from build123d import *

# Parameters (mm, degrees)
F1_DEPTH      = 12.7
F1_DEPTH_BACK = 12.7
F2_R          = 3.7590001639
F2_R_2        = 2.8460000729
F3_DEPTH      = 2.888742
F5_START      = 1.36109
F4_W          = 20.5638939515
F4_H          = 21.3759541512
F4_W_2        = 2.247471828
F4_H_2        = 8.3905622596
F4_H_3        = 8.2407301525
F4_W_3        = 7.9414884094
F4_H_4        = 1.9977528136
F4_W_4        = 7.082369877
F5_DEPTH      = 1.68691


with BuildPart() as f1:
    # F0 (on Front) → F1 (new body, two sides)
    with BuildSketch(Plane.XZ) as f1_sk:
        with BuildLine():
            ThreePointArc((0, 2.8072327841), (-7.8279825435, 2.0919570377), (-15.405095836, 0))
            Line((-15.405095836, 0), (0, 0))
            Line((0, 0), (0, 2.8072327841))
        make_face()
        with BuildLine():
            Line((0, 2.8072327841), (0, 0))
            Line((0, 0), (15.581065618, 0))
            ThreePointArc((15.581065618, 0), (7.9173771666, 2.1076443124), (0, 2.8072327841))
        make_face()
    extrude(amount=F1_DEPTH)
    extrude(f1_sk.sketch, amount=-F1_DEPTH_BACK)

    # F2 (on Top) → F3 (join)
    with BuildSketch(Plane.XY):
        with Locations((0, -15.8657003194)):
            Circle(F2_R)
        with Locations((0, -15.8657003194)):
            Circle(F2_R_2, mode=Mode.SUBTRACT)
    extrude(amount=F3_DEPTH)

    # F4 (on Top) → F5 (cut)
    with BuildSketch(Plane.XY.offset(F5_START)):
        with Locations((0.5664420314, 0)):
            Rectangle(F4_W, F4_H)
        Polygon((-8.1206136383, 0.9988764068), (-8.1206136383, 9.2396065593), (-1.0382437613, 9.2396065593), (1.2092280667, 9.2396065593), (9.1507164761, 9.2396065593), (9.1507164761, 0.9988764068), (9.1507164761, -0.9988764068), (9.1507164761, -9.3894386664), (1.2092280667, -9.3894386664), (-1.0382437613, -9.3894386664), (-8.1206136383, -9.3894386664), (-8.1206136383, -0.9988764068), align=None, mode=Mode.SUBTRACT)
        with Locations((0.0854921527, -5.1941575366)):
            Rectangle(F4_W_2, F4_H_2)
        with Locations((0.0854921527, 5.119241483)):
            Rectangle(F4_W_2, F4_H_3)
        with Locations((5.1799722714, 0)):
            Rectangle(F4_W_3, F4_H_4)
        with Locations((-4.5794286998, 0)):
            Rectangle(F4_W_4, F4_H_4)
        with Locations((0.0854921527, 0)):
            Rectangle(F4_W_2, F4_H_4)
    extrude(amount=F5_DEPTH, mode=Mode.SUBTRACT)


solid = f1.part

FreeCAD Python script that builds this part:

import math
import FreeCAD as App
import Part
import Sketcher
from FreeCAD import Vector
Q = App.Units.Quantity


def add_polygon(sketch, points):
    """Adds a closed chain of lines whose ends are joined by coincident constraints."""
    first, n = sketch.GeometryCount, len(points)
    for a, b in zip(points, points[1:] + points[:1]):
        sketch.addGeometry(Part.LineSegment(App.Vector(*a, 0), App.Vector(*b, 0)), False)
    for i in range(n):
        sketch.addConstraint(Sketcher.Constraint("Coincident", first + i, 2, first + (i + 1) % n, 1))

doc = App.newDocument("Part")
body = doc.addObject("PartDesign::Body", "Body")

# Sketch on XZ plane
sketch1 = body.newObject("Sketcher::SketchObject", "Sketch")
sketch1.AttachmentSupport = (doc.getObject("XZ_Plane"), [""])
sketch1.MapMode = "FlatFace"
sketch1.addGeometry(Part.ArcOfCircle(Part.Circle(Vector(0.087985, -41.348059, 0), Vector(0, 0, 1), 44.155379), math.radians(90.114169), math.radians(110.540929)), False)
sketch1.addGeometry(Part.LineSegment(Vector(-15.405096, 0, 0), Vector(15.581066, 0, 0)), False)
sketch1.addGeometry(Part.ArcOfCircle(Part.Circle(Vector(0.087985, -41.348059, 0), Vector(0, 0, 1), 44.155379), math.radians(69.459071), math.radians(90.114169)), False)
sketch1.addConstraint(Sketcher.Constraint("Coincident", 0, 2, 1, 1))
sketch1.addConstraint(Sketcher.Constraint("Coincident", 1, 2, 2, 1))
sketch1.addConstraint(Sketcher.Constraint("Tangent", 2, 2, 0, 1))
sketch1.addConstraint(Sketcher.Constraint("Horizontal", 1))
sketch1.addConstraint(Sketcher.Constraint("Equal", 0, 2))
sketch1.addConstraint(Sketcher.Constraint("PointOnObject", 0, 2, -1))
sketch1.addConstraint(Sketcher.Constraint("PointOnObject", 2, 2, -2))
sketch1.addConstraint(Sketcher.Constraint("Radius", 0, Q("44.155379 mm")))
sketch1.addConstraint(Sketcher.Constraint("DistanceX", 0, 2, -1, 1, Q("0.6064998 in")))
sketch1.addConstraint(Sketcher.Constraint("DistanceX", 1, 1, 1, 2, Q("30.986161 mm")))
pad1 = body.newObject("PartDesign::Pad", "Pad")
pad1.Profile = sketch1
pad1.Type = "TwoLengths"
pad1.Length = Q("0.5 in")
pad1.Length2 = Q("0.5 in")

# Sketch on XY plane
sketch2 = body.newObject("Sketcher::SketchObject", "Sketch001")
sketch2.AttachmentSupport = (doc.getObject("XY_Plane"), [""])
sketch2.MapMode = "FlatFace"
sketch2.addGeometry(Part.Circle(Vector(0, -15.8657, 0), Vector(0, 0, 1), 3.759), False)
sketch2.addGeometry(Part.Circle(Vector(0, -15.8657, 0), Vector(0, 0, 1), 2.846), False)
sketch2.addConstraint(Sketcher.Constraint("Coincident", 1, 3, 0, 3))
sketch2.addConstraint(Sketcher.Constraint("PointOnObject", 0, 3, -2))
sketch2.addConstraint(Sketcher.Constraint("Diameter", 0, Q("7.518 mm")))
sketch2.addConstraint(Sketcher.Constraint("Diameter", 1, Q("5.692 mm")))
sketch2.addConstraint(Sketcher.Constraint("DistanceY", 0, 3, -1, 1, Q("15.8657 mm")))
pad2 = body.newObject("PartDesign::Pad", "Pad001")
pad2.Profile = sketch2
pad2.Length = 2.888742

# Sketch on XY plane
sketch3 = body.newObject("Sketcher::SketchObject", "Sketch002")
sketch3.AttachmentSupport = (doc.getObject("XY_Plane"), [""])
sketch3.MapMode = "FlatFace"
sketch3.AttachmentOffset = App.Placement(Vector(0, 0, 1.36109), App.Rotation())
add_polygon(sketch3, [(-9.715505, 10.687977), (-9.715505, -10.687977), (10.848389, -10.687977), (10.848389, 10.687977)])  # lines 0-3
add_polygon(sketch3, [(-8.120614, -0.998876), (-1.038244, -0.998876), (-1.038244, -9.389439), (-8.120614, -9.389439)])  # lines 4-7
add_polygon(sketch3, [(1.209228, -9.389439), (1.209228, -0.998876), (9.150716, -0.998876), (9.150716, -9.389439)])  # lines 8-11
add_polygon(sketch3, [(-1.038244, 9.239607), (-1.038244, 0.998876), (-8.120614, 0.998876), (-8.120614, 9.239607)])  # lines 12-15
add_polygon(sketch3, [(9.150716, 0.998876), (1.209228, 0.998876), (1.209228, 9.239607), (9.150716, 9.239607)])  # lines 16-19
sketch3.addConstraint(Sketcher.Constraint("Vertical", 0))
sketch3.addConstraint(Sketcher.Constraint("Horizontal", 1))
sketch3.addConstraint(Sketcher.Constraint("Vertical", 2))
sketch3.addConstraint(Sketcher.Constraint("Horizontal", 3))
sketch3.addConstraint(Sketcher.Constraint("Horizontal", 4))
sketch3.addConstraint(Sketcher.Constraint("Vertical", 5))
sketch3.addConstraint(Sketcher.Constraint("Horizontal", 6))
sketch3.addConstraint(Sketcher.Constraint("Vertical", 7))
sketch3.addConstraint(Sketcher.Constraint("Vertical", 8))
sketch3.addConstraint(Sketcher.Constraint("Horizontal", 9))
sketch3.addConstraint(Sketcher.Constraint("Vertical", 10))
sketch3.addConstraint(Sketcher.Constraint("Horizontal", 11))
sketch3.addConstraint(Sketcher.Constraint("Vertical", 12))
sketch3.addConstraint(Sketcher.Constraint("Horizontal", 13))
sketch3.addConstraint(Sketcher.Constraint("Vertical", 14))
sketch3.addConstraint(Sketcher.Constraint("Horizontal", 15))
sketch3.addConstraint(Sketcher.Constraint("Horizontal", 16))
sketch3.addConstraint(Sketcher.Constraint("Vertical", 17))
sketch3.addConstraint(Sketcher.Constraint("Horizontal", 18))
sketch3.addConstraint(Sketcher.Constraint("Vertical", 19))
sketch3.addConstraint(Sketcher.Constraint("Symmetric", 4, 2, 12, 2, -1))
sketch3.addConstraint(Sketcher.Constraint("Symmetric", 8, 2, 16, 2, -1))
sketch3.addConstraint(Sketcher.Constraint("Horizontal", 7, 2, 8, 2))
sketch3.addConstraint(Sketcher.Constraint("Horizontal", 6, 2, 10, 2))
sketch3.addConstraint(Sketcher.Constraint("Horizontal", 15, 2, 17, 2))
sketch3.addConstraint(Sketcher.Constraint("Vertical", 7, 2, 13, 2))
sketch3.addConstraint(Sketcher.Constraint("Vertical", 10, 2, 18, 2))
sketch3.addConstraint(Sketcher.Constraint("DistanceX", 0, 2, -1, 1, Q("0.3825002 in")))
sketch3.addConstraint(Sketcher.Constraint("DistanceX", 4, 1, 4, 2, Q("7.08237 mm")))
sketch3.addConstraint(Sketcher.Constraint("DistanceX", 9, 1, 9, 2, Q("7.941488 mm")))
sketch3.addConstraint(Sketcher.Constraint("DistanceY", 12, 2, 12, 1, Q("8.24073 mm")))
sketch3.addConstraint(Sketcher.Constraint("DistanceY", 0, 2, 4, 2, Q("9.689101 mm")))
sketch3.addConstraint(Sketcher.Constraint("DistanceY", 13, 2, 3, 2, Q("9.689101 mm")))
sketch3.addConstraint(Sketcher.Constraint("DistanceX", 1, 1, 1, 2, Q("20.563894 mm")))
sketch3.addConstraint(Sketcher.Constraint("DistanceY", 0, 2, 0, 1, Q("21.375954 mm")))
sketch3.addConstraint(Sketcher.Constraint("DistanceY", 5, 2, 5, 1, Q("8.390562 mm")))
sketch3.addConstraint(Sketcher.Constraint("DistanceX", -1, 1, 8, 2, Q("1.209228 mm")))
sketch3.addConstraint(Sketcher.Constraint("DistanceX", 0, 2, 4, 2, Q("8.677261 mm")))
pocket1 = body.newObject("PartDesign::Pocket", "Pocket")
pocket1.Profile = sketch3
pocket1.Length = 1.68691
pocket1.Reversed = True

doc.recompute()
